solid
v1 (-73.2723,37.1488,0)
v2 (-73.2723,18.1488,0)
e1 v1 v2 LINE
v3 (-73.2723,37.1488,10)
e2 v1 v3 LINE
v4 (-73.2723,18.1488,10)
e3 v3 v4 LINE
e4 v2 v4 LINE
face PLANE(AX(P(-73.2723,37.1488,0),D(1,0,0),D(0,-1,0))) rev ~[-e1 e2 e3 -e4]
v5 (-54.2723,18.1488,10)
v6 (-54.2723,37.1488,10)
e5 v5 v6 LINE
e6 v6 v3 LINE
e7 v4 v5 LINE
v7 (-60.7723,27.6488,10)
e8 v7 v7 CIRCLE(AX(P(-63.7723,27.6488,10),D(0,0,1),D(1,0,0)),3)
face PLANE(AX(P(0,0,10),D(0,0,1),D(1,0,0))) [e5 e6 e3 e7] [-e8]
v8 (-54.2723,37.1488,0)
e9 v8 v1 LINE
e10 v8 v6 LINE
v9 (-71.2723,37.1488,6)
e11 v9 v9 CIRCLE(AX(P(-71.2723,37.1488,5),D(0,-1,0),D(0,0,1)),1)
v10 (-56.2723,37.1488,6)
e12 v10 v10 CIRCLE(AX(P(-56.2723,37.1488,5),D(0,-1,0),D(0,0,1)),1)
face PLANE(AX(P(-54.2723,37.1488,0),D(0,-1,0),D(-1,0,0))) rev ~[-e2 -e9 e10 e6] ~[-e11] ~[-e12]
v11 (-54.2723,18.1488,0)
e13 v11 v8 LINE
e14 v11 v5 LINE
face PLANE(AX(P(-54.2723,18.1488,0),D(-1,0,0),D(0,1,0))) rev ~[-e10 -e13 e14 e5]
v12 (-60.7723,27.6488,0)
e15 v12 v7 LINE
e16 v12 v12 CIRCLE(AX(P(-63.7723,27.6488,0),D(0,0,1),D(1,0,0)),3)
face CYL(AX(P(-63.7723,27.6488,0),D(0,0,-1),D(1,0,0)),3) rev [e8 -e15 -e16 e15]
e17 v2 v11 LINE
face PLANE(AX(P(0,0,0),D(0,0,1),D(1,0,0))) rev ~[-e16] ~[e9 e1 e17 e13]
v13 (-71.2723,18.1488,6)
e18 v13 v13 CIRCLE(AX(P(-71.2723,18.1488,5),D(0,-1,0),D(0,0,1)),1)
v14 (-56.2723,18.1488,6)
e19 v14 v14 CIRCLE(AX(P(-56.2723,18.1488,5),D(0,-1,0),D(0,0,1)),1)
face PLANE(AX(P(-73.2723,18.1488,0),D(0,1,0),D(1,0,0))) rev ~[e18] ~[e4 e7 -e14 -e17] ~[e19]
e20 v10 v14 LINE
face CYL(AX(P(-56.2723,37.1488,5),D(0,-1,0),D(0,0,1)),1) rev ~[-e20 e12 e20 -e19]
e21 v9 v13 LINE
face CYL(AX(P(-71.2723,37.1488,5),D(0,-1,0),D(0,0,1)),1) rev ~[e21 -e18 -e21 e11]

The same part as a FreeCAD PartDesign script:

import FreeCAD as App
import Part
import Sketcher

V = App.Vector
Q = App.Units.Quantity


def add_polygon(sketch, points):
    """Adds a closed chain of lines whose ends are joined by coincident constraints."""
    first, n = sketch.GeometryCount, len(points)
    for a, b in zip(points, points[1:] + points[:1]):
        sketch.addGeometry(Part.LineSegment(App.Vector(*a, 0), App.Vector(*b, 0)), False)
    for i in range(n):
        sketch.addConstraint(Sketcher.Constraint("Coincident", first + i, 2, first + (i + 1) % n, 1))

doc = App.newDocument("Part")
body = doc.addObject("PartDesign::Body", "Body")

sketch1 = doc.addObject("Sketcher::SketchObject", "Sketch")
body.addObject(sketch1)
sketch1.AttachmentSupport = (doc.XY_Plane, [""])
sketch1.MapMode = "FlatFace"
add_polygon(sketch1, [(-73.3, 37.1), (-73.3, 18.1), (-54.3, 18.1), (-54.3, 37.1)])
sketch1.addGeometry(Part.Circle(V(-63.8, 27.6, 0), V(0, 0, 1), 3), False)
sketch1.addConstraint(Sketcher.Constraint("Vertical", 0))
sketch1.addConstraint(Sketcher.Constraint("Horizontal", 1))
sketch1.addConstraint(Sketcher.Constraint("Vertical", 2))
sketch1.addConstraint(Sketcher.Constraint("Horizontal", 3))
sketch1.addConstraint(Sketcher.Constraint("Equal", 3, 0))
sketch1.addConstraint(Sketcher.Constraint("Diameter", 4, Q("6 mm")))
sketch1.addConstraint(Sketcher.Constraint("DistanceX", 1, 1, 1, 2, Q("19 mm")))
sketch1.addConstraint(Sketcher.Constraint("DistanceX", 0, 2, 4, 3, Q("9.5 mm")))
sketch1.addConstraint(Sketcher.Constraint("DistanceY", 0, 2, 4, 3, Q("9.5 mm")))
sketch1.addConstraint(Sketcher.Constraint("DistanceX", 4, 3, -1, 1, Q("63.7723 mm")))
sketch1.addConstraint(Sketcher.Constraint("DistanceY", -1, 1, 4, 3, Q("27.6488 mm")))
pad1 = doc.addObject("PartDesign::Pad", "Pad")
body.addObject(pad1)
pad1.Profile = sketch1
pad1.Length = 10

sketch2 = doc.addObject("Sketcher::SketchObject", "Sketch001")
body.addObject(sketch2)
sketch2.AttachmentSupport = (doc.XZ_Plane, [""])
sketch2.MapMode = "FlatFace"
sketch2.AttachmentOffset = App.Placement(V(0, 0, -37.1488), App.Rotation())
sketch2.addGeometry(Part.Circle(V(-71.3, 5, 0), V(0, 0, 1), 1), False)
sketch2.addGeometry(Part.Circle(V(-56.3, 5, 0), V(0, 0, 1), 1), False)
sketch2.addConstraint(Sketcher.Constraint("Equal", 0, 1))
sketch2.addConstraint(Sketcher.Constraint("Horizontal", 0, 3, 1, 3))
sketch2.addConstraint(Sketcher.Constraint("Diameter", 0, Q("2 mm")))
sketch2.addConstraint(Sketcher.Constraint("DistanceY", -1, 1, 0, 3, Q("5 mm")))
sketch2.addConstraint(Sketcher.Constraint("DistanceX", 0, 3, 1, 3, Q("15 mm")))
sketch2.addConstraint(Sketcher.Constraint("DistanceX", 0, 3, -1, 1, Q("71.2723 mm")))
doc.recompute()
hole = doc.addObject("PartDesign::Hole", "Hole")
body.addObject(hole)
hole.Profile = sketch2
hole.ThreadType = "None"
hole.Diameter = 2
hole.DepthType = "ThroughAll"
hole.Reversed = True

doc.recompute()
